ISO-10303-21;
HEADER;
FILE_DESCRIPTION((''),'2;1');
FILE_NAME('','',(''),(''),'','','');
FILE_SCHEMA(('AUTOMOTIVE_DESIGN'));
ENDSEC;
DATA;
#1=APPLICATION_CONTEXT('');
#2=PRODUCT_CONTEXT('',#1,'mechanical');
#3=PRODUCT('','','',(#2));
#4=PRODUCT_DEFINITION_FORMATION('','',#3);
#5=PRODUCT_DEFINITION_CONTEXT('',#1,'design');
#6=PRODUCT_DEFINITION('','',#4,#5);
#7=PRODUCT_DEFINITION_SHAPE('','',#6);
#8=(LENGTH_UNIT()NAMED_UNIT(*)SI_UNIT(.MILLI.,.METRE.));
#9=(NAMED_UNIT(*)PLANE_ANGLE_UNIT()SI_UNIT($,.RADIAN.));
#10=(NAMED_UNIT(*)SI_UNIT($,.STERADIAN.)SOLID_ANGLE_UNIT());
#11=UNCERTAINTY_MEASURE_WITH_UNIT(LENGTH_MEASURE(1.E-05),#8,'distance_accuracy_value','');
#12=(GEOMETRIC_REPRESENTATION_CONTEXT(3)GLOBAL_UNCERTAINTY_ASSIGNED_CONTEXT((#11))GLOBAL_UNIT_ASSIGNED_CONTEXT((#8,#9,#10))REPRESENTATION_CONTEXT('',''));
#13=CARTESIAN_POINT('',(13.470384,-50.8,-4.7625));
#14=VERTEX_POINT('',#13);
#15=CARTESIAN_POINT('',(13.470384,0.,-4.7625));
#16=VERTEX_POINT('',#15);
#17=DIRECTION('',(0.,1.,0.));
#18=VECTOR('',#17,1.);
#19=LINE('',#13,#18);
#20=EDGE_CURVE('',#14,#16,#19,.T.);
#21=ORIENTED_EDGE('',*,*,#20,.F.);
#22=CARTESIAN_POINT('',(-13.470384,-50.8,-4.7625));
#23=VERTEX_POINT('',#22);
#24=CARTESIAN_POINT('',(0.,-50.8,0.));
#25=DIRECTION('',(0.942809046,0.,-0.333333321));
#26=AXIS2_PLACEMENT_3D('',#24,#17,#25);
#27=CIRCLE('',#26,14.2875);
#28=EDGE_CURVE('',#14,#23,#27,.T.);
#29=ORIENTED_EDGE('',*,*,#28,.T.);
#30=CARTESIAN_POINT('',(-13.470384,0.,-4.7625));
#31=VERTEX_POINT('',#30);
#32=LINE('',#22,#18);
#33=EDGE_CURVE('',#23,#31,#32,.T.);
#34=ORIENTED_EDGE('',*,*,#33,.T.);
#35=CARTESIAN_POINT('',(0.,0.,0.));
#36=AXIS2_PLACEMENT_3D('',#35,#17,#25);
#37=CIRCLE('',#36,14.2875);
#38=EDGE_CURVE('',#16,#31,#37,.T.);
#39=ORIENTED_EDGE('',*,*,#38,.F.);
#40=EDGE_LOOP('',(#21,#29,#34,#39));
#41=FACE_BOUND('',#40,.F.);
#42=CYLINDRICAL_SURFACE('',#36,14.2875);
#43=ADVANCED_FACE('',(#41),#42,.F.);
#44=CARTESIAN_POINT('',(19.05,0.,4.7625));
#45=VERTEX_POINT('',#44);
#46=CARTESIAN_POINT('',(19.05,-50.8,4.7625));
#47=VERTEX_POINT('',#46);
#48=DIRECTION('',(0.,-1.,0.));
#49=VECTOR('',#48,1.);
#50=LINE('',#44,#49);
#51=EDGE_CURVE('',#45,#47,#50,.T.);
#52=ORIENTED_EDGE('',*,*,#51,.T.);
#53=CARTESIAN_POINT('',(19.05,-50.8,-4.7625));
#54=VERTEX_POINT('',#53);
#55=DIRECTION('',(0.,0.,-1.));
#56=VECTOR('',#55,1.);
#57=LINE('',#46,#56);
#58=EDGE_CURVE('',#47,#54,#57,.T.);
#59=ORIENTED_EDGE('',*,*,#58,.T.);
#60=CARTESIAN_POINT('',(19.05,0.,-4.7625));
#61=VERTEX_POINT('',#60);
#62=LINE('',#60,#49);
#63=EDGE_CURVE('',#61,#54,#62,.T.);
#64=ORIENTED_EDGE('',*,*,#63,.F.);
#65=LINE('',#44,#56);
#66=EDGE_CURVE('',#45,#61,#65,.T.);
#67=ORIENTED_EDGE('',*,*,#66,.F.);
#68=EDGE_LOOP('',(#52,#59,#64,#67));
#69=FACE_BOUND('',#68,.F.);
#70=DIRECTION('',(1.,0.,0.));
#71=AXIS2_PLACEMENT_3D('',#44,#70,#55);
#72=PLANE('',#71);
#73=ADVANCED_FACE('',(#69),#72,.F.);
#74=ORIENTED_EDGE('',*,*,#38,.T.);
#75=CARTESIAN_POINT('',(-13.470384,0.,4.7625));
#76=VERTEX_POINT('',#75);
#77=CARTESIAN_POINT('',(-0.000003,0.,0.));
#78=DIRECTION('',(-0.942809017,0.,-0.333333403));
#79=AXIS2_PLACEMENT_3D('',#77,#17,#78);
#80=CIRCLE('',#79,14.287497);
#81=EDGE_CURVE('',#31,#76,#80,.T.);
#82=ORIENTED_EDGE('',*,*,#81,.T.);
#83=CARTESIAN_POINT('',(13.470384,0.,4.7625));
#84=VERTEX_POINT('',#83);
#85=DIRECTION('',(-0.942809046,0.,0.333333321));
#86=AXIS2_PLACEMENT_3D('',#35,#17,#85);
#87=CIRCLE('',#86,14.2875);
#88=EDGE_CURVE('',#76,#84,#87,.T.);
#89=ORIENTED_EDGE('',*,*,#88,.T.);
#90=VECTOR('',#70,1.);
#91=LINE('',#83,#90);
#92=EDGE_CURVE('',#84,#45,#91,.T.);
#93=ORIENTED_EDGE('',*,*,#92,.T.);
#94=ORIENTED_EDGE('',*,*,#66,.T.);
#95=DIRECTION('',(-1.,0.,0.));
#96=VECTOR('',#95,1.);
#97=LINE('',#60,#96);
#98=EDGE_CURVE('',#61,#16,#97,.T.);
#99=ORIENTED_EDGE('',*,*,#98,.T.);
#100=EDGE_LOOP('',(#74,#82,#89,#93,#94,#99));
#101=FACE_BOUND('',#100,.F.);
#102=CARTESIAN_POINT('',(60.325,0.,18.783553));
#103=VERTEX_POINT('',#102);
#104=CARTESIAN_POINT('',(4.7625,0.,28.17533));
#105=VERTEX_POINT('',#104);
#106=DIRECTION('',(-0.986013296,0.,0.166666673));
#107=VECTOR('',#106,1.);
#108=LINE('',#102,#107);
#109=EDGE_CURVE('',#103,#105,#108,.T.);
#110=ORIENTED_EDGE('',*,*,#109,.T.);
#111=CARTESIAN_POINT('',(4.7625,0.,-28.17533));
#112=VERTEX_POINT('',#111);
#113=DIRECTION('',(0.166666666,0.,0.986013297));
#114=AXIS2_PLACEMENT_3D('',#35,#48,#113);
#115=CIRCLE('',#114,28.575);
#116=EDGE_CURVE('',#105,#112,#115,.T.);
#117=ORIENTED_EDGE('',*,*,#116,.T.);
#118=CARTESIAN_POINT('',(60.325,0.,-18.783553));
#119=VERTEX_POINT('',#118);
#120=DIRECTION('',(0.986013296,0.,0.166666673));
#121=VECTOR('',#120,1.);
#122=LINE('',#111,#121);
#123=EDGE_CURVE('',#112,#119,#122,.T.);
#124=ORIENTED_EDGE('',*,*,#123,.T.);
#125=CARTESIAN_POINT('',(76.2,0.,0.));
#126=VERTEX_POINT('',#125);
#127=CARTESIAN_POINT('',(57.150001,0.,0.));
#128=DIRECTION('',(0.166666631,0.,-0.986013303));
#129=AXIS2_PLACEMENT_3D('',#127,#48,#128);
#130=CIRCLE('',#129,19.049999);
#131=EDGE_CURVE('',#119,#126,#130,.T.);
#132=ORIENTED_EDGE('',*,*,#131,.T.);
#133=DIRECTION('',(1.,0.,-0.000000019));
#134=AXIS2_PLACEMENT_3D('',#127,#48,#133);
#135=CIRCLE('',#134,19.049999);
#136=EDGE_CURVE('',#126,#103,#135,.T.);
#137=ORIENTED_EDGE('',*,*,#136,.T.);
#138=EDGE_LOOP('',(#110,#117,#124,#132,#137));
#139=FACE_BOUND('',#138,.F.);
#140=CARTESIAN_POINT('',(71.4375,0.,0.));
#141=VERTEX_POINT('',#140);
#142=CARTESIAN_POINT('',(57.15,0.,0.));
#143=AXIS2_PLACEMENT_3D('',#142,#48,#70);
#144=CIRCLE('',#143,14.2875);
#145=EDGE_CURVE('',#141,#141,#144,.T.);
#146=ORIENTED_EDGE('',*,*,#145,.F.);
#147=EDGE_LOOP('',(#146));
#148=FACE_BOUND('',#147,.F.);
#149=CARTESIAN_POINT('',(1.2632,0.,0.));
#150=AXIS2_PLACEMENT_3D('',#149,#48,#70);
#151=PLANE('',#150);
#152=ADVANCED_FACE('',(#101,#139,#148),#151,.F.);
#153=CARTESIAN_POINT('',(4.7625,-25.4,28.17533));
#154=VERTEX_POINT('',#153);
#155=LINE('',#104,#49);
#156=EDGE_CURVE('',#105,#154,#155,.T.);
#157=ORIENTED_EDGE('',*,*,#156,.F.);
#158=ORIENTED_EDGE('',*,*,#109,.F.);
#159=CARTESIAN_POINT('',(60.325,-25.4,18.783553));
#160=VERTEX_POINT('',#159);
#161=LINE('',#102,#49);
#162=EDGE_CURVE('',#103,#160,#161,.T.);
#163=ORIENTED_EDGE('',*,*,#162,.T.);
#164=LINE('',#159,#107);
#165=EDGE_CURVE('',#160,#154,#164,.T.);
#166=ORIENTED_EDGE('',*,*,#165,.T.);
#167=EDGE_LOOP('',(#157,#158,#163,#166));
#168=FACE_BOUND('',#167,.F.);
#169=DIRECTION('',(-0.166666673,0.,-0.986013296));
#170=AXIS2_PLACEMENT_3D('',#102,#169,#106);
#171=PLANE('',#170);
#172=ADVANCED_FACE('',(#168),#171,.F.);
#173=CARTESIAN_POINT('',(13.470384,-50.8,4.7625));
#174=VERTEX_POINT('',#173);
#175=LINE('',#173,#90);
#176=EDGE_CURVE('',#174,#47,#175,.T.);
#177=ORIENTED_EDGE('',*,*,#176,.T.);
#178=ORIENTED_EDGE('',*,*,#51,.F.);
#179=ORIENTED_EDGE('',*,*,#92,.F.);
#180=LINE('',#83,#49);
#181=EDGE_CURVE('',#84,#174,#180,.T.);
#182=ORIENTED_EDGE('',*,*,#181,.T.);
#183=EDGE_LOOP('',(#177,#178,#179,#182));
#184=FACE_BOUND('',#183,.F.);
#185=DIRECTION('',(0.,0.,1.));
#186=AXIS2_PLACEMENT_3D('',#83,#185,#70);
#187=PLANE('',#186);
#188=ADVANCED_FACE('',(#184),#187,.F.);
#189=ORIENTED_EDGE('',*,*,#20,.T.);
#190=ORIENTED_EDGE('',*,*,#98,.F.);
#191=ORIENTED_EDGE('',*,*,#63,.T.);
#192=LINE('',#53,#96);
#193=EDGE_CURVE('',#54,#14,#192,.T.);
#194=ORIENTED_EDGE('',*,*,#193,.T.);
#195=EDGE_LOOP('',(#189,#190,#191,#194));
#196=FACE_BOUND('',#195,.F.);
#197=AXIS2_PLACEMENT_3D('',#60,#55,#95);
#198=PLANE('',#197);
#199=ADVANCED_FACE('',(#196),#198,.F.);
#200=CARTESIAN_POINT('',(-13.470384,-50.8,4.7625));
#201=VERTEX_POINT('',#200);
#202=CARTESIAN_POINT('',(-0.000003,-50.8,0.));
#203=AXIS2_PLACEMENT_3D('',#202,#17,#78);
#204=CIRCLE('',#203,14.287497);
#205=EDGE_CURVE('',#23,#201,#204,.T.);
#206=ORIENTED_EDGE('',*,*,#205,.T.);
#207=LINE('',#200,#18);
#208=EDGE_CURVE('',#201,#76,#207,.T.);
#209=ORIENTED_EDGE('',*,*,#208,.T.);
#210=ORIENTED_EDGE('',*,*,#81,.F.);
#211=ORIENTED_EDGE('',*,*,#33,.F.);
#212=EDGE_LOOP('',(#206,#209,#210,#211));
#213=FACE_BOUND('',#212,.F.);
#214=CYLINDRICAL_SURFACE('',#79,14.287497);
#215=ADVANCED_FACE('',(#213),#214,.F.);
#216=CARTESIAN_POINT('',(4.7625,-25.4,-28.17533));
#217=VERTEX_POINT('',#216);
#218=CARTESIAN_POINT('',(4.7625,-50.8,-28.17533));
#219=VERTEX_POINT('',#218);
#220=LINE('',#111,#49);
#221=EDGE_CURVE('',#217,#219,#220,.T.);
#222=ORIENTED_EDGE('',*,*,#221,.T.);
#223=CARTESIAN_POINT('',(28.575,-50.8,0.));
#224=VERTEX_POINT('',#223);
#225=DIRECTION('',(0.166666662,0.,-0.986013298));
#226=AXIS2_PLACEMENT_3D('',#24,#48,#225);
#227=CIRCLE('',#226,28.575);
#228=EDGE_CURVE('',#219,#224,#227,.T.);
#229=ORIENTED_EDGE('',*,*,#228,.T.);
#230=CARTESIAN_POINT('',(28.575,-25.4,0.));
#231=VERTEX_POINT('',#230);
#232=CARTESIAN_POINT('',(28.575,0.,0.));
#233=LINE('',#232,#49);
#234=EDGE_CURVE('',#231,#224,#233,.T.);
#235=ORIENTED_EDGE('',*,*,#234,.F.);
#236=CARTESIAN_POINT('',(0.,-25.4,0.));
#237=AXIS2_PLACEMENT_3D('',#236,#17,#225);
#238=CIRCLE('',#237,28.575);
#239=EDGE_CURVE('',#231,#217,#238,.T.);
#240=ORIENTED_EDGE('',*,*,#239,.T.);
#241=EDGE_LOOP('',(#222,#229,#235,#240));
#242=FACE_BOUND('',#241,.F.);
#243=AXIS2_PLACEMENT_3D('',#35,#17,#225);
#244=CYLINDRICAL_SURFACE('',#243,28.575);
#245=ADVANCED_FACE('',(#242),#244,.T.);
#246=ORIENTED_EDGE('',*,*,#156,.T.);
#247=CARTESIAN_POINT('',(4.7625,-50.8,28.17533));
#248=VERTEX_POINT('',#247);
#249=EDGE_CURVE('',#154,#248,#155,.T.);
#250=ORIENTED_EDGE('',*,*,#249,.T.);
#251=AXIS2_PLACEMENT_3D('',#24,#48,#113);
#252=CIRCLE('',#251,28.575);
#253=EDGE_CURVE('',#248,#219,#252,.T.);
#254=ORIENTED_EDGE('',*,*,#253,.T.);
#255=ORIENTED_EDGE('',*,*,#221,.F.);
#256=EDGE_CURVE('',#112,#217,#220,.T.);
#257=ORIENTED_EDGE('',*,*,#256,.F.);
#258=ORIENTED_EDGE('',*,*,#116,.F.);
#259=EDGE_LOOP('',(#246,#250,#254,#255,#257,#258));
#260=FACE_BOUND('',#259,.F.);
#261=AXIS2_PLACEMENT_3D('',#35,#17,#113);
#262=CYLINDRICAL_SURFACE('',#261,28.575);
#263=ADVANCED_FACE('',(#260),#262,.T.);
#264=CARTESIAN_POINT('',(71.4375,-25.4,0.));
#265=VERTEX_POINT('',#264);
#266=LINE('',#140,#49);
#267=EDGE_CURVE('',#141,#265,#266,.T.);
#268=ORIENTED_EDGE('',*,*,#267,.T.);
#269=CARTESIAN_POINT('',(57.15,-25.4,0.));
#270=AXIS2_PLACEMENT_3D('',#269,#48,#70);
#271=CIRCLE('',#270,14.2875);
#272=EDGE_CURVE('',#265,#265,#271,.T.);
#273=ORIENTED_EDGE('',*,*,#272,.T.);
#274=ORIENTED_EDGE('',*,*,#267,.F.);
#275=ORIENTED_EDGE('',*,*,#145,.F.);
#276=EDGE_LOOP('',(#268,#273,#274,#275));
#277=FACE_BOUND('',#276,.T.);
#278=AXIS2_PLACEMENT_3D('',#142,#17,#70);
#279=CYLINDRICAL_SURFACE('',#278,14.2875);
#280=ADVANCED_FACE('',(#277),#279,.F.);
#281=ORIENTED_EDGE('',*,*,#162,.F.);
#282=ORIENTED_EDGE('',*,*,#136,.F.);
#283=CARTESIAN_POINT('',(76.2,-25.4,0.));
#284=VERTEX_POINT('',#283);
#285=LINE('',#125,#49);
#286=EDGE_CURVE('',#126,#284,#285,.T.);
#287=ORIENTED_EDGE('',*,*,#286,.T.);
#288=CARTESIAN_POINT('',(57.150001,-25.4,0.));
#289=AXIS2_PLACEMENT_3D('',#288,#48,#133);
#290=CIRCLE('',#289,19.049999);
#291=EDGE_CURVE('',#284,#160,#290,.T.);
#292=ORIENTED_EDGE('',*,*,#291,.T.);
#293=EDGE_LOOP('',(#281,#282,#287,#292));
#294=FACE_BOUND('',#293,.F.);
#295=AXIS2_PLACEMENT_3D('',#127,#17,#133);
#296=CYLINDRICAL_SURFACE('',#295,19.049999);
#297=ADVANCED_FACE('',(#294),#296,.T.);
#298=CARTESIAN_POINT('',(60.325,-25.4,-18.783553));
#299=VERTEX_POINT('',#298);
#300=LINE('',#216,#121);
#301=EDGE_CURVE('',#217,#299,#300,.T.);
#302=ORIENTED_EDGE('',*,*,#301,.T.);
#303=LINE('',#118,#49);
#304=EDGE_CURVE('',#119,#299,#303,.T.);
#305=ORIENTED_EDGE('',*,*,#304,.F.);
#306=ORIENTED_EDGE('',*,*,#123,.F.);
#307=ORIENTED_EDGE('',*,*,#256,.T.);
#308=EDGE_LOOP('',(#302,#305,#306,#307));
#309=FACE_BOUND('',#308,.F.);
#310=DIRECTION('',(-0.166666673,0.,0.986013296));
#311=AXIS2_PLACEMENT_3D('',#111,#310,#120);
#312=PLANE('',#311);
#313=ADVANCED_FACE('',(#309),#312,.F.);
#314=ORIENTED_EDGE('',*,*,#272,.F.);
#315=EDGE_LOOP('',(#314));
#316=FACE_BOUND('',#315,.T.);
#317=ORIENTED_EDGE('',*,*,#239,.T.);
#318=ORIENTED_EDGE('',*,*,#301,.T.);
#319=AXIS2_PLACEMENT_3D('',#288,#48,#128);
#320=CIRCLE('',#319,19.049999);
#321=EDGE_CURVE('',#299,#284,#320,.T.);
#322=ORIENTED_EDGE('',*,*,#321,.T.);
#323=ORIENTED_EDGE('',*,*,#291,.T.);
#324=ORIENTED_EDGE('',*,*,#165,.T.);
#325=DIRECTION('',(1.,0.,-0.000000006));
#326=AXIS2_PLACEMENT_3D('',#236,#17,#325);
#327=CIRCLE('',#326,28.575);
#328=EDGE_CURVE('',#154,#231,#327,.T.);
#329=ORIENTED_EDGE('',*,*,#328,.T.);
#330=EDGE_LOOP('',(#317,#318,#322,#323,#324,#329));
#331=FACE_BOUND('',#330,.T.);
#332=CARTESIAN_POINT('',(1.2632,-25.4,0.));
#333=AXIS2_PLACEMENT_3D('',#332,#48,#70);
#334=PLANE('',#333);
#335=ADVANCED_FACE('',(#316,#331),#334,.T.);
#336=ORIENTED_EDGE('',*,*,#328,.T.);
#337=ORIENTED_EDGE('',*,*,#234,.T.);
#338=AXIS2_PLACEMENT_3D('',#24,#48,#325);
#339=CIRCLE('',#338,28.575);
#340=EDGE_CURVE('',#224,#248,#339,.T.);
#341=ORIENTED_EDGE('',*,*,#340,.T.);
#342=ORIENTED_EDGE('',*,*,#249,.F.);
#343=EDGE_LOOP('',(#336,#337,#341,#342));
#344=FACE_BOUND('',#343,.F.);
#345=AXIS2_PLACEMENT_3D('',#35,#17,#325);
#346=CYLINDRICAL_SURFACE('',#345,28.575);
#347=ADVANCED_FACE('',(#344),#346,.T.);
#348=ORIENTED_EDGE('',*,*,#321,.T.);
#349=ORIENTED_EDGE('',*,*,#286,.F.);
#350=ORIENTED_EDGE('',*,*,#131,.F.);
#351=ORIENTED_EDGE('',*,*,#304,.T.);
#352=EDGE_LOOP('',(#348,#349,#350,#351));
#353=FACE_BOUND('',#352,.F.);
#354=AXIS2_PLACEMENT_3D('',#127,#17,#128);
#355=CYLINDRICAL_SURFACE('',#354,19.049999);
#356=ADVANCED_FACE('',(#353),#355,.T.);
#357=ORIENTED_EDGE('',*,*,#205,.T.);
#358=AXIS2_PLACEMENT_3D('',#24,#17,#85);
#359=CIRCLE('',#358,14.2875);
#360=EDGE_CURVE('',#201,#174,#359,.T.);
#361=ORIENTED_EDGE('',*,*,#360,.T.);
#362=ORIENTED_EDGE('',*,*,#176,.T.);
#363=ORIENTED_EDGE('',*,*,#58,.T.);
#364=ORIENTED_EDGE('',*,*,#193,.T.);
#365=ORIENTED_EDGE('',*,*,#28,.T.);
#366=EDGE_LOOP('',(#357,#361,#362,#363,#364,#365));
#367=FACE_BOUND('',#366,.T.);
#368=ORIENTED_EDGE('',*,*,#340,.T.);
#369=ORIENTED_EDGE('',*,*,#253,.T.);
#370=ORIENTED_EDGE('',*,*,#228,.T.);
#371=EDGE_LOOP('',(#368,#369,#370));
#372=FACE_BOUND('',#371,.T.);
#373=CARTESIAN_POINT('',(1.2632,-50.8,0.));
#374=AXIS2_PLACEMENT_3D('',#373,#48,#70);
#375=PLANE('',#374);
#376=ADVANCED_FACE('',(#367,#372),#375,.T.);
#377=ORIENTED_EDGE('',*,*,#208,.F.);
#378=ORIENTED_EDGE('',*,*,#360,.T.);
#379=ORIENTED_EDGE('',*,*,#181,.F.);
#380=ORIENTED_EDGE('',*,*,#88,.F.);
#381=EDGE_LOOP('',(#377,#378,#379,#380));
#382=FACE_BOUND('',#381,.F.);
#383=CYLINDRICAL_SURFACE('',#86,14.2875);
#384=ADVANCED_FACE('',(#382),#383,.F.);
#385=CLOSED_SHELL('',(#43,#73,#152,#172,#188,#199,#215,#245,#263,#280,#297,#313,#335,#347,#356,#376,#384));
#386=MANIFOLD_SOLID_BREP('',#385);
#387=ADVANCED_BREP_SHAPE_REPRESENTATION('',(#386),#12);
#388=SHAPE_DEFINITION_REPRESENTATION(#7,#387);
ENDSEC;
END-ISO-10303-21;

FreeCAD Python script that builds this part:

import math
import FreeCAD as App
import Part
import Sketcher
from FreeCAD import Vector
Q = App.Units.Quantity

doc = App.newDocument("Part")
params = doc.addObject("Spreadsheet::Sheet", "Params")
for row, (alias, value) in enumerate([
    ("sketch1_radius", "0.75 in"),
    ("sketch1_diameter", "1.125 in"),
    ("sketch1_radius2", "1.125 in"),
    ("sketch1_height", "0.375 in"),
    ("pad1_length", "1 in"),
    ("sketch2_radius", "1.125 in"),
    ("sketch2_radius2", "0.5625 in"),
    ("sketch2_height", "0.375 in"),
    ("pad2_length", "2 in"),
], start=1):
    params.set(f"A{row}", alias)
    params.set(f"B{row}", "=" + value)
    params.setAlias(f"B{row}", alias)

body = doc.addObject("PartDesign::Body", "Body")

# Sketch on XZ plane
sketch1 = body.newObject("Sketcher::SketchObject", "Sketch")
sketch1.AttachmentSupport = (doc.getObject("XZ_Plane"), [""])
sketch1.MapMode = "FlatFace"
sketch1.addGeometry(Part.ArcOfCircle(Part.Circle(Vector(0, 0, 0), Vector(0, 0, 1), 28.575), math.radians(80.405932), math.radians(279.594068)), False)
sketch1.addGeometry(Part.LineSegment(Vector(4.7625, -28.17533, 0), Vector(60.325, -18.783553, 0)), False)
sketch1.addGeometry(Part.ArcOfCircle(Part.Circle(Vector(57.150001, 0, 0), Vector(0, 0, 1), 19.049999), math.radians(-80.405934), math.radians(0.000001)), False)
sketch1.addGeometry(Part.ArcOfCircle(Part.Circle(Vector(57.150001, 0, 0), Vector(0, 0, 1), 19.049999), math.radians(-0.000001), math.radians(80.405934)), False)
sketch1.addGeometry(Part.LineSegment(Vector(60.325, 18.783553, 0), Vector(4.7625, 28.17533, 0)), False)
sketch1.addGeometry(Part.ArcOfCircle(Part.Circle(Vector(0, 0, 0), Vector(0, 0, 1), 14.2875), math.radians(19.47122), math.radians(160.52878)), False)
sketch1.addGeometry(Part.LineSegment(Vector(13.470384, 4.7625, 0), Vector(19.05, 4.7625, 0)), False)
sketch1.addGeometry(Part.LineSegment(Vector(19.05, 4.7625, 0), Vector(19.05, -4.7625, 0)), False)
sketch1.addGeometry(Part.LineSegment(Vector(19.05, -4.7625, 0), Vector(13.470384, -4.7625, 0)), False)
sketch1.addGeometry(Part.ArcOfCircle(Part.Circle(Vector(0, 0, 0), Vector(0, 0, 1), 14.2875), math.radians(-160.52878), math.radians(-19.47122)), False)
sketch1.addGeometry(Part.ArcOfCircle(Part.Circle(Vector(-0.000003, 0, 0), Vector(0, 0, 1), 14.287497), math.radians(160.528775), math.radians(199.471225)), False)
sketch1.addGeometry(Part.Circle(Vector(57.15, 0, 0), Vector(0, 0, 1), 14.2875), False)
sketch1.addConstraint(Sketcher.Constraint("Tangent", 0, 2, 1, 1))
sketch1.addConstraint(Sketcher.Constraint("Tangent", 1, 2, 2, 1))
sketch1.addConstraint(Sketcher.Constraint("Tangent", 2, 2, 3, 1))
sketch1.addConstraint(Sketcher.Constraint("Tangent", 3, 2, 4, 1))
sketch1.addConstraint(Sketcher.Constraint("Tangent", 4, 2, 0, 1))
sketch1.addConstraint(Sketcher.Constraint("Coincident", 5, 1, 6, 1))
sketch1.addConstraint(Sketcher.Constraint("Coincident", 6, 2, 7, 1))
sketch1.addConstraint(Sketcher.Constraint("Coincident", 7, 2, 8, 1))
sketch1.addConstraint(Sketcher.Constraint("Coincident", 8, 2, 9, 2))
sketch1.addConstraint(Sketcher.Constraint("Tangent", 9, 1, 10, 2))
sketch1.addConstraint(Sketcher.Constraint("Tangent", 10, 1, 5, 2))
sketch1.addConstraint(Sketcher.Constraint("Horizontal", 6))
sketch1.addConstraint(Sketcher.Constraint("Vertical", 7))
sketch1.addConstraint(Sketcher.Constraint("Horizontal", 8))
sketch1.addConstraint(Sketcher.Constraint("Coincident", 0, 3, -1, 1))
sketch1.addConstraint(Sketcher.Constraint("Coincident", 5, 3, -1, 1))
sketch1.addConstraint(Sketcher.Constraint("Coincident", 9, 3, -1, 1))
sketch1.addConstraint(Sketcher.Constraint("Coincident", 11, 3, 2, 3))
sketch1.addConstraint(Sketcher.Constraint("Equal", 2, 3))
sketch1.addConstraint(Sketcher.Constraint("Equal", 9, 11))
sketch1.addConstraint(Sketcher.Constraint("PointOnObject", 2, 3, -1))
sketch1.addConstraint(Sketcher.Constraint("PointOnObject", 2, 2, -1))
sketch1.addConstraint(Sketcher.Constraint("Horizontal", 8, 2, 9, 1))
sketch1.addConstraint(Sketcher.Constraint("Horizontal", 6, 2, 10, 1))
sketch1.addConstraint(Sketcher.Constraint("Vertical", 5, 1, 8, 2))
sketch1.addConstraint(Sketcher.Constraint("Radius", 2, Q("0.75 in")))
sketch1.addConstraint(Sketcher.Constraint("Diameter", 11, Q("1.125 in")))
sketch1.addConstraint(Sketcher.Constraint("DistanceX", -1, 1, 2, 2, Q("3 in")))
sketch1.addConstraint(Sketcher.Constraint("Radius", 0, Q("1.125 in")))
sketch1.addConstraint(Sketcher.Constraint("DistanceY", 7, 2, 7, 1, Q("0.375 in")))
sketch1.addConstraint(Sketcher.Constraint("DistanceX", -1, 1, 6, 2, Q("0.75 in")))
sketch1.setExpression("Constraints[25]", "Params.sketch1_radius")
sketch1.setExpression("Constraints[26]", "Params.sketch1_diameter")
sketch1.setExpression("Constraints[28]", "Params.sketch1_radius2")
sketch1.setExpression("Constraints[29]", "Params.sketch1_height")
pad1 = body.newObject("PartDesign::Pad", "Pad")
pad1.Profile = sketch1
pad1.setExpression("Length", "Params.pad1_length")

# Sketch on XZ plane
sketch2 = body.newObject("Sketcher::SketchObject", "Sketch001")
sketch2.AttachmentSupport = (doc.getObject("XZ_Plane"), [""])
sketch2.MapMode = "FlatFace"
sketch2.addGeometry(Part.ArcOfCircle(Part.Circle(Vector(0, 0, 0), Vector(0, 0, 1), 28.575), math.radians(-80.405932), math.radians(0)), False)
sketch2.addGeometry(Part.ArcOfCircle(Part.Circle(Vector(0, 0, 0), Vector(0, 0, 1), 28.575), math.radians(0), math.radians(80.405932)), False)
sketch2.addGeometry(Part.ArcOfCircle(Part.Circle(Vector(0, 0, 0), Vector(0, 0, 1), 28.575), math.radians(80.405932), math.radians(279.594068)), False)
sketch2.addGeometry(Part.ArcOfCircle(Part.Circle(Vector(0, 0, 0), Vector(0, 0, 1), 14.2875), math.radians(-160.52878), math.radians(-19.47122)), False)
sketch2.addGeometry(Part.ArcOfCircle(Part.Circle(Vector(-0.000003, 0, 0), Vector(0, 0, 1), 14.287497), math.radians(160.528775), math.radians(199.471225)), False)
sketch2.addGeometry(Part.ArcOfCircle(Part.Circle(Vector(0, 0, 0), Vector(0, 0, 1), 14.2875), math.radians(19.47122), math.radians(160.52878)), False)
sketch2.addGeometry(Part.LineSegment(Vector(13.470384, 4.7625, 0), Vector(19.05, 4.7625, 0)), False)
sketch2.addGeometry(Part.LineSegment(Vector(19.05, 4.7625, 0), Vector(19.05, -4.7625, 0)), False)
sketch2.addGeometry(Part.LineSegment(Vector(19.05, -4.7625, 0), Vector(13.470384, -4.7625, 0)), False)
sketch2.addConstraint(Sketcher.Constraint("Tangent", 0, 2, 1, 1))
sketch2.addConstraint(Sketcher.Constraint("Tangent", 1, 2, 2, 1))
sketch2.addConstraint(Sketcher.Constraint("Tangent", 2, 2, 0, 1))
sketch2.addConstraint(Sketcher.Constraint("Tangent", 3, 1, 4, 2))
sketch2.addConstraint(Sketcher.Constraint("Tangent", 4, 1, 5, 2))
sketch2.addConstraint(Sketcher.Constraint("Coincident", 5, 1, 6, 1))
sketch2.addConstraint(Sketcher.Constraint("Coincident", 6, 2, 7, 1))
sketch2.addConstraint(Sketcher.Constraint("Coincident", 7, 2, 8, 1))
sketch2.addConstraint(Sketcher.Constraint("Coincident", 8, 2, 3, 2))
sketch2.addConstraint(Sketcher.Constraint("Horizontal", 6))
sketch2.addConstraint(Sketcher.Constraint("Vertical", 7))
sketch2.addConstraint(Sketcher.Constraint("Horizontal", 8))
sketch2.addConstraint(Sketcher.Constraint("Coincident", 0, 3, -1, 1))
sketch2.addConstraint(Sketcher.Constraint("Coincident", 3, 3, -1, 1))
sketch2.addConstraint(Sketcher.Constraint("Coincident", 5, 3, -1, 1))
sketch2.addConstraint(Sketcher.Constraint("PointOnObject", 0, 2, -1))
sketch2.addConstraint(Sketcher.Constraint("Horizontal", 4, 1, 5, 1))
sketch2.addConstraint(Sketcher.Constraint("Horizontal", 3, 1, 7, 2))
sketch2.addConstraint(Sketcher.Constraint("Vertical", 1, 2, 2, 2))
sketch2.addConstraint(Sketcher.Constraint("Vertical", 3, 1, 4, 1))
sketch2.addConstraint(Sketcher.Constraint("Radius", 0, Q("1.125 in")))
sketch2.addConstraint(Sketcher.Constraint("Radius", 3, Q("0.5625 in")))
sketch2.addConstraint(Sketcher.Constraint("DistanceY", 7, 2, 7, 1, Q("0.375 in")))
sketch2.addConstraint(Sketcher.Constraint("DistanceX", -1, 1, 6, 2, Q("0.75 in")))
sketch2.addConstraint(Sketcher.Constraint("DistanceX", -1, 1, 1, 2, Q("0.1875 in")))
sketch2.setExpression("Constraints[20]", "Params.sketch2_radius")
sketch2.setExpression("Constraints[21]", "Params.sketch2_radius2")
sketch2.setExpression("Constraints[22]", "Params.sketch2_height")
pad2 = body.newObject("PartDesign::Pad", "Pad001")
pad2.Profile = sketch2
pad2.setExpression("Length", "Params.pad2_length")

doc.recompute()
